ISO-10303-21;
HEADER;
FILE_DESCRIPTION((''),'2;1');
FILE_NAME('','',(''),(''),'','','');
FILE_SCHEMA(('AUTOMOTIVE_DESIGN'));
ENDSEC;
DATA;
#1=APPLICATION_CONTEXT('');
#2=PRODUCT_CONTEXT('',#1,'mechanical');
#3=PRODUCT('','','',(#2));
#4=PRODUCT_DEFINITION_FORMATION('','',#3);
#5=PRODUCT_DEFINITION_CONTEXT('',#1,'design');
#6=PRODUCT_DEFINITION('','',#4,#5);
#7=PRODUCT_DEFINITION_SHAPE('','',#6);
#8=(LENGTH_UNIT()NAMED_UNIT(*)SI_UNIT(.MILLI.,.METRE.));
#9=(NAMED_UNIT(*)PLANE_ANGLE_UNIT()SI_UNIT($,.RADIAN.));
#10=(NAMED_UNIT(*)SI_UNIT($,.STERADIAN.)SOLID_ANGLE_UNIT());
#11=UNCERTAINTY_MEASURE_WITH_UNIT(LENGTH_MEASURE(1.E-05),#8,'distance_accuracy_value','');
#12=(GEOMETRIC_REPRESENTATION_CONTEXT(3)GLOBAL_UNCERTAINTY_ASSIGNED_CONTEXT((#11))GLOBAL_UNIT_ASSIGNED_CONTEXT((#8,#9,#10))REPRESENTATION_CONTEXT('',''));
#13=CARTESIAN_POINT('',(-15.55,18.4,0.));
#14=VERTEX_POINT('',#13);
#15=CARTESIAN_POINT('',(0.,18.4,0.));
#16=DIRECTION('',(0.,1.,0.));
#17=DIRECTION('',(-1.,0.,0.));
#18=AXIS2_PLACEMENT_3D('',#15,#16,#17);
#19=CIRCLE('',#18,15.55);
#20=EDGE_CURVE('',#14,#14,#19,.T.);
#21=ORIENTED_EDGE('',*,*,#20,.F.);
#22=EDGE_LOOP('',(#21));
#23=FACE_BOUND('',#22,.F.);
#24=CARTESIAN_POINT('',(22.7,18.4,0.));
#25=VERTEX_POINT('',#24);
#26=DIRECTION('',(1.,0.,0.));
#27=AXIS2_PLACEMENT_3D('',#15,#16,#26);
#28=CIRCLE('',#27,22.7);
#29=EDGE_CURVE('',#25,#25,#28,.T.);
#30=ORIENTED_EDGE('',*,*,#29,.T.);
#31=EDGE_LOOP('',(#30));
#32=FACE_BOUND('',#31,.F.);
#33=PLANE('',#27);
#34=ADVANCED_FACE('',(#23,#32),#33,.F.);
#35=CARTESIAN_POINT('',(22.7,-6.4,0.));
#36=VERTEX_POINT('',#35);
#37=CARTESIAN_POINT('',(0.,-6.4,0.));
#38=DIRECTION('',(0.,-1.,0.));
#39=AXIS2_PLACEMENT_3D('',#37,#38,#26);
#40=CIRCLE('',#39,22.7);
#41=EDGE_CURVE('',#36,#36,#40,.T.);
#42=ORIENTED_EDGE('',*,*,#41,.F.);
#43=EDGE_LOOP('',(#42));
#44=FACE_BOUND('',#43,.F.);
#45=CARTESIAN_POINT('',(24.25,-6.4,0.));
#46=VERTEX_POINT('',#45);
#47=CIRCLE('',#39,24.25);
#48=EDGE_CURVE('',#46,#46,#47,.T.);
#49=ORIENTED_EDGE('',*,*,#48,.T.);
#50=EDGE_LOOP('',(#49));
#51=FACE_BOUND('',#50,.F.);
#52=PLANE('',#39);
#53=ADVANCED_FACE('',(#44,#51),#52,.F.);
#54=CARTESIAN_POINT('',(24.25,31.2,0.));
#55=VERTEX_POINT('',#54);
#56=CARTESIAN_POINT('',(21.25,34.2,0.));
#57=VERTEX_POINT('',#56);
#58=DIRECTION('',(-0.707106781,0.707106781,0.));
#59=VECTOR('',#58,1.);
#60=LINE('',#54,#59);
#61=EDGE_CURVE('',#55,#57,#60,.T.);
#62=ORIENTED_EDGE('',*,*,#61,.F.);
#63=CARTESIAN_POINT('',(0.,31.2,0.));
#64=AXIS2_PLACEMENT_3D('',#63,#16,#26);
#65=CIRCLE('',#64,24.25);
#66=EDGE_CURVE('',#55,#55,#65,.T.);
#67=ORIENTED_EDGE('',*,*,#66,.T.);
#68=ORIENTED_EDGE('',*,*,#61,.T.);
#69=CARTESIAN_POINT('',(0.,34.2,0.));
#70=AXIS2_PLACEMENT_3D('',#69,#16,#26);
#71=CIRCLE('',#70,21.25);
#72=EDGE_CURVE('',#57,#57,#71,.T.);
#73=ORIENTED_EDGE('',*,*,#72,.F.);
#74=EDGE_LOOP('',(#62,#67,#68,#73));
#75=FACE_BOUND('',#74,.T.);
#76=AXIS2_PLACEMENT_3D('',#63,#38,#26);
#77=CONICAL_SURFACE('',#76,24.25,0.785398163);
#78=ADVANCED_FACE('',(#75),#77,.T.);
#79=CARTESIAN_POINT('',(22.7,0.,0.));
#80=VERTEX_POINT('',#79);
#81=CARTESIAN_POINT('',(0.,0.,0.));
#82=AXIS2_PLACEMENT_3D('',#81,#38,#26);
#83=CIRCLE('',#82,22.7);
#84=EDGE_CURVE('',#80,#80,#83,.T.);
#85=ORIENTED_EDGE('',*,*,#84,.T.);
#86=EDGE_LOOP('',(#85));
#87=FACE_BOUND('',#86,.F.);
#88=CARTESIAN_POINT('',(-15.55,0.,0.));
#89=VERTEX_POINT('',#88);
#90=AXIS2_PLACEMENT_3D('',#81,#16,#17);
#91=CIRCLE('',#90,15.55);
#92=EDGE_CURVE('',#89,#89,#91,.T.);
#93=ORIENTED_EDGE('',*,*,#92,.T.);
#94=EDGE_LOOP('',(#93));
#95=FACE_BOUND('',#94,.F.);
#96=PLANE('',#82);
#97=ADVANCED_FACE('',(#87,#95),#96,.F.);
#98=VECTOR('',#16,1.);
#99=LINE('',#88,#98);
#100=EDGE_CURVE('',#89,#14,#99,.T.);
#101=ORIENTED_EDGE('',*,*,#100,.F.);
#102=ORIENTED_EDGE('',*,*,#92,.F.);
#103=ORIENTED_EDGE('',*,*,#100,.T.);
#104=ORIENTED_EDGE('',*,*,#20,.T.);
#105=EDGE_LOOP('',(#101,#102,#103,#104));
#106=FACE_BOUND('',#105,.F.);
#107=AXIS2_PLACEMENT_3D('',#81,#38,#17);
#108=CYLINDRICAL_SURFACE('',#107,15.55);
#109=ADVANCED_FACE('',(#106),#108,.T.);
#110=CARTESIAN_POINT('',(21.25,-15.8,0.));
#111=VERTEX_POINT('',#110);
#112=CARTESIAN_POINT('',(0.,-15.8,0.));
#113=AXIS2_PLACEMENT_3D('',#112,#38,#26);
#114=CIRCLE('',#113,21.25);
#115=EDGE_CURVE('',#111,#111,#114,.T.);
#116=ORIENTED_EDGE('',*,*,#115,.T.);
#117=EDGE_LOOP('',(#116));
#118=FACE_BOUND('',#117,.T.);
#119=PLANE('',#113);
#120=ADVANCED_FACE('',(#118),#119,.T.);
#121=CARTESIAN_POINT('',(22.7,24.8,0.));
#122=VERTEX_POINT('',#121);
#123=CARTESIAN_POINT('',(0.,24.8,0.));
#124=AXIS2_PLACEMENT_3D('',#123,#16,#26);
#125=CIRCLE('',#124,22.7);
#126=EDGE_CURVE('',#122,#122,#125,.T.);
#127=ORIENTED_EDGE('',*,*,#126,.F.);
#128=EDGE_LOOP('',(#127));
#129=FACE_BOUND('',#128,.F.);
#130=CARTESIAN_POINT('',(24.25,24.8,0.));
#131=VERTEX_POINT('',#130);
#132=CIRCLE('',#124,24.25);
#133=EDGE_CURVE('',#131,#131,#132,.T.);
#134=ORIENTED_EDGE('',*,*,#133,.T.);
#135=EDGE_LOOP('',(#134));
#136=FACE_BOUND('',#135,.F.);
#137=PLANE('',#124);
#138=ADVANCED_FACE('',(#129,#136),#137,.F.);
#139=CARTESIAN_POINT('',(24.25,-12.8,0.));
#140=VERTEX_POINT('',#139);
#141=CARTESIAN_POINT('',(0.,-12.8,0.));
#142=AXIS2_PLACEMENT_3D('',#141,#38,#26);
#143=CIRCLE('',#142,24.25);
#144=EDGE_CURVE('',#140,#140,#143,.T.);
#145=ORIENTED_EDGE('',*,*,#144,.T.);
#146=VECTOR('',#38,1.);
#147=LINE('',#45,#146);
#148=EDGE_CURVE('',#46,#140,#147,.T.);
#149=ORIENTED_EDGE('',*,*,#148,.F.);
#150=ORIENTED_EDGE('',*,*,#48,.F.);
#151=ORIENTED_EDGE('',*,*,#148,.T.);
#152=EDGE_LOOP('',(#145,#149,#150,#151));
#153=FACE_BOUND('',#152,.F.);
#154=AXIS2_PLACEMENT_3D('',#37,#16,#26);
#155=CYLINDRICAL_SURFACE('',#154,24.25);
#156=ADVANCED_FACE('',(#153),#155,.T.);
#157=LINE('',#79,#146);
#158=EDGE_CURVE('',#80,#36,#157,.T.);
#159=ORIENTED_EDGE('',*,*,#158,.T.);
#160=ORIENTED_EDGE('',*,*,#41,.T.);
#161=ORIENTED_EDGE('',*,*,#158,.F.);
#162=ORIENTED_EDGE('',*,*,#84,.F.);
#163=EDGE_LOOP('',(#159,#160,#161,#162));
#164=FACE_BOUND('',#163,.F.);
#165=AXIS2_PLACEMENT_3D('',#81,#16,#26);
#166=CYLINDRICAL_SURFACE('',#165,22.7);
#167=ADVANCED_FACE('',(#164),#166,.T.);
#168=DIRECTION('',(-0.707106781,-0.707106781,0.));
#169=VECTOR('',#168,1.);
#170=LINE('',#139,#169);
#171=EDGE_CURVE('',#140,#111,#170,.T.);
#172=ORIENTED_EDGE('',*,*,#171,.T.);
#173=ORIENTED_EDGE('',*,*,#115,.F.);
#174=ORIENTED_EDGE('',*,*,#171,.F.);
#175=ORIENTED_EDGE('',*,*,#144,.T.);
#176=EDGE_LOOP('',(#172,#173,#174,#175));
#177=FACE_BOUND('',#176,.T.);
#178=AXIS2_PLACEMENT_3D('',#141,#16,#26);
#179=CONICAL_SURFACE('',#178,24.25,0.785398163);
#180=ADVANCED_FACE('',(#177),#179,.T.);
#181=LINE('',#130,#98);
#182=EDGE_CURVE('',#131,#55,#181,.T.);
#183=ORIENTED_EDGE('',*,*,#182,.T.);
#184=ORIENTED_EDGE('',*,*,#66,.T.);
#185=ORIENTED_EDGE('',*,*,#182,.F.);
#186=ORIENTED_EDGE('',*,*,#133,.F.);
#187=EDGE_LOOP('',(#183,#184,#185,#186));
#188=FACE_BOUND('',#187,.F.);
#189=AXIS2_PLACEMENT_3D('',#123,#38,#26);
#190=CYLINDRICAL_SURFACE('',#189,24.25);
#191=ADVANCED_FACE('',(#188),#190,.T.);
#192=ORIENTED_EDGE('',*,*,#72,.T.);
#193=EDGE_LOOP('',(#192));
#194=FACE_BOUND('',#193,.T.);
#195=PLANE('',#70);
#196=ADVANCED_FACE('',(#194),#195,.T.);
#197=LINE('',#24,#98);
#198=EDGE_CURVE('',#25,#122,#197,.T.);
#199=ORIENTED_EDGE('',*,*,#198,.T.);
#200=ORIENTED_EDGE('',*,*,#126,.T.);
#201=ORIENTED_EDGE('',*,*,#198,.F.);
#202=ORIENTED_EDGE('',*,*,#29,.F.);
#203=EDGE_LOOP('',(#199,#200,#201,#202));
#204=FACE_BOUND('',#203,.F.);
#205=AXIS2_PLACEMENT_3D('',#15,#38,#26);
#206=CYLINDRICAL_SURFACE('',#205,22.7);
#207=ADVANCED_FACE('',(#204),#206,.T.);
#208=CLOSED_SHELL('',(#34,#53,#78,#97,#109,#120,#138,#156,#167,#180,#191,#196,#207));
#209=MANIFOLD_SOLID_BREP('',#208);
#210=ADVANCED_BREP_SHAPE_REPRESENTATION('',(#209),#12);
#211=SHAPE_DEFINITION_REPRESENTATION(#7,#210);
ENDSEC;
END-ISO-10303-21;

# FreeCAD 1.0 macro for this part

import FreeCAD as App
import Part
import Sketcher
from FreeCAD import Vector


def edges_at(feature, points):
    """Names of the edges that pass closest to the given points."""
    edges = feature.Shape.Edges
    near = lambda p: min(range(len(edges)), key=lambda i: edges[i].distToShape(Part.Vertex(*p))[0])
    return sorted({f"Edge{near(p) + 1}" for p in points})

doc = App.newDocument("Part")
body = doc.addObject("PartDesign::Body", "Body")

# Sketch on XZ plane
sketch1 = body.newObject("Sketcher::SketchObject", "Sketch")
sketch1.AttachmentSupport = (doc.getObject("XZ_Plane"), [""])
sketch1.MapMode = "FlatFace"
sketch1.addGeometry(Part.Circle(Vector(0, 0, 0), Vector(0, 0, 1), 15.55), False)
sketch1.addConstraint(Sketcher.Constraint("Coincident", 0, 3, -1, 1))
sketch1.addConstraint(Sketcher.Constraint("Diameter", 0, 31.1))
pad1 = body.newObject("PartDesign::Pad", "Pad")
pad1.Profile = sketch1
pad1.Length = 18.4
pad1.Reversed = True

# Sketch on XZ plane
sketch2 = body.newObject("Sketcher::SketchObject", "Sketch001")
sketch2.AttachmentSupport = (doc.getObject("XZ_Plane"), [""])
sketch2.MapMode = "FlatFace"
sketch2.AttachmentOffset = App.Placement(Vector(0, 0, -18.4), App.Rotation())
sketch2.addGeometry(Part.Circle(Vector(0, 0, 0), Vector(0, 0, 1), 22.7), False)
sketch2.addConstraint(Sketcher.Constraint("Coincident", 0, 3, -1, 1))
sketch2.addConstraint(Sketcher.Constraint("Diameter", 0, 45.4))
pad2 = body.newObject("PartDesign::Pad", "Pad001")
pad2.Profile = sketch2
pad2.Length = 6.4
pad2.Reversed = True

# Sketch on XZ plane
sketch3 = body.newObject("Sketcher::SketchObject", "Sketch002")
sketch3.AttachmentSupport = (doc.getObject("XZ_Plane"), [""])
sketch3.MapMode = "FlatFace"
sketch3.AttachmentOffset = App.Placement(Vector(0, 0, -24.8), App.Rotation())
sketch3.addGeometry(Part.Circle(Vector(0, 0, 0), Vector(0, 0, 1), 24.25), False)
sketch3.addConstraint(Sketcher.Constraint("Coincident", 0, 3, -1, 1))
sketch3.addConstraint(Sketcher.Constraint("Diameter", 0, 48.5))
pad3 = body.newObject("PartDesign::Pad", "Pad002")
pad3.Profile = sketch3
pad3.Length = 9.4
pad3.Reversed = True

# Sketch on XZ plane
sketch4 = body.newObject("Sketcher::SketchObject", "Sketch003")
sketch4.AttachmentSupport = (doc.getObject("XZ_Plane"), [""])
sketch4.MapMode = "FlatFace"
sketch4.addGeometry(Part.Circle(Vector(0, 0, 0), Vector(0, 0, 1), 22.7), False)
sketch4.addConstraint(Sketcher.Constraint("Coincident", 0, 3, -1, 1))
sketch4.addConstraint(Sketcher.Constraint("Diameter", 0, 45.4))
pad4 = body.newObject("PartDesign::Pad", "Pad003")
pad4.Profile = sketch4
pad4.Length = 6.4

# Sketch on XZ plane
sketch5 = body.newObject("Sketcher::SketchObject", "Sketch004")
sketch5.AttachmentSupport = (doc.getObject("XZ_Plane"), [""])
sketch5.MapMode = "FlatFace"
sketch5.AttachmentOffset = App.Placement(Vector(0, 0, 6.4), App.Rotation())
sketch5.addGeometry(Part.Circle(Vector(0, 0, 0), Vector(0, 0, 1), 24.25), False)
sketch5.addConstraint(Sketcher.Constraint("Coincident", 0, 3, -1, 1))
sketch5.addConstraint(Sketcher.Constraint("Diameter", 0, 48.5))
pad5 = body.newObject("PartDesign::Pad", "Pad004")
pad5.Profile = sketch5
pad5.Length = 9.4
doc.recompute()

chamfer = body.newObject("PartDesign::Chamfer", "Chamfer")
chamfer.Base = (pad5, edges_at(pad5, [(-24.25, 34.2, 0)]))
chamfer.Size = 3
doc.recompute()

chamfer2 = body.newObject("PartDesign::Chamfer", "Chamfer001")
chamfer2.Base = (chamfer, edges_at(chamfer, [(-24.25, -15.8, 0)]))
chamfer2.Size = 3

doc.recompute()
